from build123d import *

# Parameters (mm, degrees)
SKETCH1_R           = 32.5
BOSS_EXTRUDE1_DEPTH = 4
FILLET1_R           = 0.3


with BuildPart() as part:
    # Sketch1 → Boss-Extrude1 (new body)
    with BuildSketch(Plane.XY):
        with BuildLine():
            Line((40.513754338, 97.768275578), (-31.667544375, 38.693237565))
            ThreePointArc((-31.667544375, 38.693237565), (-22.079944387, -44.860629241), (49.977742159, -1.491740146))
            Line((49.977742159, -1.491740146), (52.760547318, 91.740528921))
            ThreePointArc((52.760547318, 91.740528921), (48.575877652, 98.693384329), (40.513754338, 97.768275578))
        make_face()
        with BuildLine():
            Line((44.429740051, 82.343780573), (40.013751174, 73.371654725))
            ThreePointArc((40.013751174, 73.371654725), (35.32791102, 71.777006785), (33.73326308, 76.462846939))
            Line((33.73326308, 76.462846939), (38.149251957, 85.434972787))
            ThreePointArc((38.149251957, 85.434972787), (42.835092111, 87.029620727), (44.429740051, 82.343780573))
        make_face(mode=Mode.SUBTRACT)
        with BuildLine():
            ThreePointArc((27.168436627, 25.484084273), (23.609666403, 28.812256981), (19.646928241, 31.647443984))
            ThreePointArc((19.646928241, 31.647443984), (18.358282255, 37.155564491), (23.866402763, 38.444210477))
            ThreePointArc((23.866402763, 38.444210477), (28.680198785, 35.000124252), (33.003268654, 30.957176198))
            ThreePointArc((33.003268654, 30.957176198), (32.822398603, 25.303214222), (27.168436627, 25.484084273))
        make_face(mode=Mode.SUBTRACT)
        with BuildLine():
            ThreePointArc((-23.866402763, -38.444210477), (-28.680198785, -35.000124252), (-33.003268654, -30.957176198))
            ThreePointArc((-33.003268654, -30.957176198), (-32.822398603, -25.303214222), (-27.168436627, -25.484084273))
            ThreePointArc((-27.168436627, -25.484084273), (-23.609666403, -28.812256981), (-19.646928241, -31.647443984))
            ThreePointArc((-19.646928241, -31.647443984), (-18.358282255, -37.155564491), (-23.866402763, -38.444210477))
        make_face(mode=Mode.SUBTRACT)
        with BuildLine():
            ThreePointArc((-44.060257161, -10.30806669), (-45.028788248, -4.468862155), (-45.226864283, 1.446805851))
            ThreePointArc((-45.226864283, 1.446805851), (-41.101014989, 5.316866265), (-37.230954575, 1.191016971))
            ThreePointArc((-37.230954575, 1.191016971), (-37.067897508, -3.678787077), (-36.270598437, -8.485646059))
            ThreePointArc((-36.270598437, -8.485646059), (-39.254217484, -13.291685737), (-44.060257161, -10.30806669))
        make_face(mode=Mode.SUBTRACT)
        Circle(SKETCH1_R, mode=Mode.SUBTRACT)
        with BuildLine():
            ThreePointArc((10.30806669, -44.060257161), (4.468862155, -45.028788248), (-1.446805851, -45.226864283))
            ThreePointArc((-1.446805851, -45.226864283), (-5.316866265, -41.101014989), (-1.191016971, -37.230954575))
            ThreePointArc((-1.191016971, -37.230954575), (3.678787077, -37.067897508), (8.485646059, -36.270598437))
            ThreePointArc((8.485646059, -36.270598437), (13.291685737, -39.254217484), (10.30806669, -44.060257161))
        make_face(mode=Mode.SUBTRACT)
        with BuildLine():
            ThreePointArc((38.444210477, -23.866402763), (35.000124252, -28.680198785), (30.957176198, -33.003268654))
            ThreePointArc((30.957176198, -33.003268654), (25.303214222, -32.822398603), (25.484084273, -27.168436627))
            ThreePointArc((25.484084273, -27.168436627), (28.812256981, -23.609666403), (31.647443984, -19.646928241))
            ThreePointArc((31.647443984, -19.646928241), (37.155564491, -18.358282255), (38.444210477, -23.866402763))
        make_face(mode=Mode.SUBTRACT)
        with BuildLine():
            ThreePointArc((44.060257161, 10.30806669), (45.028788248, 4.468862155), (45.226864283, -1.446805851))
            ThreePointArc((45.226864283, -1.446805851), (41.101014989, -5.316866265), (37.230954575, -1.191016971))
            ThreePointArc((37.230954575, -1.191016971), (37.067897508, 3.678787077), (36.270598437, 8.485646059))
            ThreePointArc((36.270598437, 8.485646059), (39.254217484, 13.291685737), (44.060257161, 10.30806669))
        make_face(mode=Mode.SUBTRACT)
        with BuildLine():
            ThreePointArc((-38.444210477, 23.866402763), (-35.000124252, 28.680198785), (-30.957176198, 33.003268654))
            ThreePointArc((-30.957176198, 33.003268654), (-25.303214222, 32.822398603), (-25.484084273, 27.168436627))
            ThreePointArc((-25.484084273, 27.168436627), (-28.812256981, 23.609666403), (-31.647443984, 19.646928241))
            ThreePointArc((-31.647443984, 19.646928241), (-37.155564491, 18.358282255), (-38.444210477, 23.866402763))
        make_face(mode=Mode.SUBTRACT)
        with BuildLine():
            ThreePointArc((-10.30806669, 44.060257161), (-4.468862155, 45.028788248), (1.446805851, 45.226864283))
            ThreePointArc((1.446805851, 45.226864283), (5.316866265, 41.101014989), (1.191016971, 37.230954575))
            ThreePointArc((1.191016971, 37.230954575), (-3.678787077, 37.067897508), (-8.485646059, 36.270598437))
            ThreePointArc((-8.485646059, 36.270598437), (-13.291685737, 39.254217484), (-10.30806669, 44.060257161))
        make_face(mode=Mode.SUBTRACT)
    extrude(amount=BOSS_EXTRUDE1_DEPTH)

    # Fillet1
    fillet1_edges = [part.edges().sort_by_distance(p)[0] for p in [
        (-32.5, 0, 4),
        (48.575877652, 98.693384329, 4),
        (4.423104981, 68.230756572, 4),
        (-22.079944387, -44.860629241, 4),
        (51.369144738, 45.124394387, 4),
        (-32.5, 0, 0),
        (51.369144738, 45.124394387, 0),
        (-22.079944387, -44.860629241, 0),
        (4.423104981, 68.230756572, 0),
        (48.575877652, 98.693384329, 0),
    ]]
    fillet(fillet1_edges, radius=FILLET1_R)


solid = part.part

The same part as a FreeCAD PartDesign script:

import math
import FreeCAD as App
import Part
import Sketcher
from FreeCAD import Vector
Q = App.Units.Quantity


def edges_at(feature, points):
    """Names of the edges that pass closest to the given points."""
    edges = feature.Shape.Edges
    near = lambda p: min(range(len(edges)), key=lambda i: edges[i].distToShape(Part.Vertex(*p))[0])
    return sorted({f"Edge{near(p) + 1}" for p in points})

doc = App.newDocument("Part")
params = doc.addObject("Spreadsheet::Sheet", "Params")
for row, (alias, value) in enumerate([
    ("sketch1_diameter", "65 mm"),
    ("sketch1_radius", "50 mm"),
    ("sketch1_radius2", "4 mm"),
    ("sketch1_radius3", "7.5 mm"),
    ("sketch1_radius4", "3.5 mm"),
    ("pad1_length", "4 mm"),
    ("fillet_radius", "0.3 mm"),
], start=1):
    params.set(f"A{row}", alias)
    params.set(f"B{row}", "=" + value)
    params.setAlias(f"B{row}", alias)

body = doc.addObject("PartDesign::Body", "Body")

# Sketch on XY plane
sketch1 = body.newObject("Sketcher::SketchObject", "Sketch")
sketch1.AttachmentSupport = (doc.getObject("XY_Plane"), [""])
sketch1.MapMode = "FlatFace"
sketch1.addGeometry([
    Part.LineSegment(Vector(40.5, 97.8, 0), Vector(-31.7, 38.7, 0)),  # 0
    Part.ArcOfCircle(Part.Circle(Vector(0, 0, 0), Vector(0, 0, 1), 50), math.radians(129), math.radians(358)),  # 1
    Part.LineSegment(Vector(50, -1.5, 0), Vector(52.8, 91.7, 0)),  # 2
    Part.ArcOfCircle(Part.Circle(Vector(45.3, 92, 0), Vector(0, 0, 1), 7.5), math.radians(-2), math.radians(129)),  # 3
    Part.ArcOfCircle(Part.Circle(Vector(-21.8, -35, 0), Vector(0, 0, 1), 4), math.radians(-122), math.radians(58)),  # 4
    Part.ArcOfCircle(Part.Circle(Vector(0, 0, 0), Vector(0, 0, 1), 45.3), math.radians(-136.83), math.radians(-121.83)),  # 5
    Part.ArcOfCircle(Part.Circle(Vector(-30.1, -28.2, 0), Vector(0, 0, 1), 4), math.radians(43), math.radians(223)),  # 6
    Part.ArcOfCircle(Part.Circle(Vector(0, 0, 0), Vector(0, 0, 1), 37.3), math.radians(-136.83), math.radians(-121.83)),  # 7
    Part.ArcOfCircle(Part.Circle(Vector(-40.2, -9.4, 0), Vector(0, 0, 1), 4), math.radians(-167), math.radians(13)),  # 8
    Part.ArcOfCircle(Part.Circle(Vector(0, 0, 0), Vector(0, 0, 1), 45.2), math.radians(178.17), math.radians(193.17)),  # 9
    Part.ArcOfCircle(Part.Circle(Vector(-41.2, 1.3, 0), Vector(0, 0, 1), 4), math.radians(-2), math.radians(178)),  # 10
    Part.ArcOfCircle(Part.Circle(Vector(0, 0, 0), Vector(0, 0, 1), 37.2), math.radians(178.17), math.radians(193.17)),  # 11
    Part.ArcOfCircle(Part.Circle(Vector(9.4, -40.2, 0), Vector(0, 0, 1), 4), math.radians(-77), math.radians(103)),  # 12
    Part.ArcOfCircle(Part.Circle(Vector(0, 0, 0), Vector(0, 0, 1), 45.2), math.radians(-91.83), math.radians(-76.83)),  # 13
    Part.ArcOfCircle(Part.Circle(Vector(-1.3, -41.2, 0), Vector(0, 0, 1), 4), math.radians(88), math.radians(268)),  # 14
    Part.ArcOfCircle(Part.Circle(Vector(0, 0, 0), Vector(0, 0, 1), 37.2), math.radians(-91.83), math.radians(-76.83)),  # 15
    Part.ArcOfCircle(Part.Circle(Vector(35, -21.8, 0), Vector(0, 0, 1), 4), math.radians(-32), math.radians(148)),  # 16
    Part.ArcOfCircle(Part.Circle(Vector(0, 0, 0), Vector(0, 0, 1), 45.3), math.radians(-46.83), math.radians(-31.83)),  # 17
    Part.ArcOfCircle(Part.Circle(Vector(28.2, -30.1, 0), Vector(0, 0, 1), 4), math.radians(133), math.radians(313)),  # 18
    Part.ArcOfCircle(Part.Circle(Vector(0, 0, 0), Vector(0, 0, 1), 37.3), math.radians(-46.83), math.radians(-31.83)),  # 19
    Part.Circle(Vector(0, 0, 0), Vector(0, 0, 1), 32.5),  # 20
    Part.ArcOfCircle(Part.Circle(Vector(40.2, 9.4, 0), Vector(0, 0, 1), 4), math.radians(13), math.radians(193)),  # 21
    Part.ArcOfCircle(Part.Circle(Vector(0, 0, 0), Vector(0, 0, 1), 45.2), math.radians(-1.83), math.radians(13.17)),  # 22
    Part.ArcOfCircle(Part.Circle(Vector(41.2, -1.3, 0), Vector(0, 0, 1), 4), math.radians(178), math.radians(358)),  # 23
    Part.ArcOfCircle(Part.Circle(Vector(0, 0, 0), Vector(0, 0, 1), 37.2), math.radians(-1.83), math.radians(13.17)),  # 24
    Part.ArcOfCircle(Part.Circle(Vector(-35, 21.8, 0), Vector(0, 0, 1), 4), math.radians(148), math.radians(328)),  # 25
    Part.ArcOfCircle(Part.Circle(Vector(0, 0, 0), Vector(0, 0, 1), 45.3), math.radians(133.17), math.radians(148.17)),  # 26
    Part.ArcOfCircle(Part.Circle(Vector(-28.2, 30.1, 0), Vector(0, 0, 1), 4), math.radians(-47), math.radians(133)),  # 27
    Part.ArcOfCircle(Part.Circle(Vector(0, 0, 0), Vector(0, 0, 1), 37.3), math.radians(133.17), math.radians(148.17)),  # 28
    Part.ArcOfCircle(Part.Circle(Vector(-9.4, 40.2, 0), Vector(0, 0, 1), 4), math.radians(103), math.radians(283)),  # 29
    Part.ArcOfCircle(Part.Circle(Vector(0, 0, 0), Vector(0, 0, 1), 45.2), math.radians(88.17), math.radians(103.17)),  # 30
    Part.ArcOfCircle(Part.Circle(Vector(1.3, 41.2, 0), Vector(0, 0, 1), 4), math.radians(-92), math.radians(88)),  # 31
    Part.ArcOfCircle(Part.Circle(Vector(0, 0, 0), Vector(0, 0, 1), 37.2), math.radians(88.17), math.radians(103.17)),  # 32
    Part.ArcOfCircle(Part.Circle(Vector(30.1, 28.2, 0), Vector(0, 0, 1), 4), math.radians(-137), math.radians(43)),  # 33
    Part.ArcOfCircle(Part.Circle(Vector(0, 0, 0), Vector(0, 0, 1), 37.3), math.radians(43.17), math.radians(58.17)),  # 34
    Part.ArcOfCircle(Part.Circle(Vector(21.8, 35, 0), Vector(0, 0, 1), 4), math.radians(58), math.radians(238)),  # 35
    Part.ArcOfCircle(Part.Circle(Vector(0, 0, 0), Vector(0, 0, 1), 45.3), math.radians(43.17), math.radians(58.17)),  # 36
    Part.ArcOfCircle(Part.Circle(Vector(41.3, 83.9, 0), Vector(0, 0, 1), 3.5), math.radians(-26), math.radians(154)),  # 37
    Part.LineSegment(Vector(44.4, 82.3, 0), Vector(40, 73.4, 0)),  # 38
    Part.ArcOfCircle(Part.Circle(Vector(36.9, 74.9, 0), Vector(0, 0, 1), 3.5), math.radians(154), math.radians(334)),  # 39
    Part.LineSegment(Vector(33.7, 76.5, 0), Vector(38.1, 85.4, 0)),  # 40
], False)
sketch1.addConstraint([
    Sketcher.Constraint("Tangent", 0, 2, 1, 1),
    Sketcher.Constraint("Tangent", 1, 2, 2, 1),
    Sketcher.Constraint("Tangent", 2, 2, 3, 1),
    Sketcher.Constraint("Tangent", 3, 2, 0, 1),
    Sketcher.Constraint("Tangent", 4, 1, 5, 2),
    Sketcher.Constraint("Tangent", 5, 1, 6, 2),
    Sketcher.Constraint("Tangent", 6, 1, 7, 1),
    Sketcher.Constraint("Tangent", 7, 2, 4, 2),
    Sketcher.Constraint("Tangent", 8, 1, 9, 2),
    Sketcher.Constraint("Tangent", 9, 1, 10, 2),
    Sketcher.Constraint("Tangent", 10, 1, 11, 1),
    Sketcher.Constraint("Tangent", 11, 2, 8, 2),
    Sketcher.Constraint("Tangent", 12, 1, 13, 2),
    Sketcher.Constraint("Tangent", 13, 1, 14, 2),
    Sketcher.Constraint("Tangent", 14, 1, 15, 1),
    Sketcher.Constraint("Tangent", 15, 2, 12, 2),
    Sketcher.Constraint("Tangent", 16, 1, 17, 2),
    Sketcher.Constraint("Tangent", 17, 1, 18, 2),
    Sketcher.Constraint("Tangent", 18, 1, 19, 1),
    Sketcher.Constraint("Tangent", 19, 2, 16, 2),
    Sketcher.Constraint("Tangent", 21, 1, 22, 2),
    Sketcher.Constraint("Tangent", 22, 1, 23, 2),
    Sketcher.Constraint("Tangent", 23, 1, 24, 1),
    Sketcher.Constraint("Tangent", 24, 2, 21, 2),
    Sketcher.Constraint("Tangent", 25, 1, 26, 2),
    Sketcher.Constraint("Tangent", 26, 1, 27, 2),
    Sketcher.Constraint("Tangent", 27, 1, 28, 1),
    Sketcher.Constraint("Tangent", 28, 2, 25, 2),
    Sketcher.Constraint("Tangent", 29, 1, 30, 2),
    Sketcher.Constraint("Tangent", 30, 1, 31, 2),
    Sketcher.Constraint("Tangent", 31, 1, 32, 1),
    Sketcher.Constraint("Tangent", 32, 2, 29, 2),
    Sketcher.Constraint("Tangent", 33, 1, 34, 1),
    Sketcher.Constraint("Tangent", 34, 2, 35, 2),
    Sketcher.Constraint("Tangent", 35, 1, 36, 2),
    Sketcher.Constraint("Tangent", 36, 1, 33, 2),
    Sketcher.Constraint("Tangent", 37, 1, 38, 1),
    Sketcher.Constraint("Tangent", 38, 2, 39, 2),
    Sketcher.Constraint("Tangent", 39, 1, 40, 1),
    Sketcher.Constraint("Tangent", 40, 2, 37, 2),
    Sketcher.Constraint("Coincident", 1, 3, -1, 1),
    Sketcher.Constraint("Coincident", 5, 3, -1, 1),
    Sketcher.Constraint("Coincident", 7, 3, -1, 1),
    Sketcher.Constraint("Coincident", 9, 3, -1, 1),
    Sketcher.Constraint("Coincident", 11, 3, -1, 1),
    Sketcher.Constraint("Coincident", 13, 3, -1, 1),
    Sketcher.Constraint("Coincident", 15, 3, -1, 1),
    Sketcher.Constraint("Coincident", 17, 3, -1, 1),
    Sketcher.Constraint("Coincident", 19, 3, -1, 1),
    Sketcher.Constraint("Coincident", 20, 3, -1, 1),
    Sketcher.Constraint("Coincident", 22, 3, -1, 1),
    Sketcher.Constraint("Coincident", 24, 3, -1, 1),
    Sketcher.Constraint("Coincident", 26, 3, -1, 1),
    Sketcher.Constraint("Coincident", 28, 3, -1, 1),
    Sketcher.Constraint("Coincident", 30, 3, -1, 1),
    Sketcher.Constraint("Coincident", 32, 3, -1, 1),
    Sketcher.Constraint("Coincident", 34, 3, -1, 1),
    Sketcher.Constraint("Coincident", 36, 3, -1, 1),
    Sketcher.Constraint("Equal", 6, 8),
    Sketcher.Constraint("Equal", 5, 9),
    Sketcher.Constraint("Equal", 10, 12),
    Sketcher.Constraint("Equal", 9, 13),
    Sketcher.Constraint("Equal", 14, 16),
    Sketcher.Constraint("Equal", 13, 17),
    Sketcher.Constraint("Equal", 18, 21),
    Sketcher.Constraint("Equal", 17, 22),
    Sketcher.Constraint("Equal", 23, 25),
    Sketcher.Constraint("Equal", 22, 26),
    Sketcher.Constraint("Equal", 27, 29),
    Sketcher.Constraint("Equal", 26, 30),
    Sketcher.Constraint("Equal", 31, 33),
    Sketcher.Constraint("Equal", 32, 34),
    Sketcher.Constraint("Equal", 37, 39),
    Sketcher.Constraint("Diameter", 20, Q("65 mm")),
    Sketcher.Constraint("Radius", 1, Q("50 mm")),
    Sketcher.Constraint("Radius", 4, Q("4 mm")),
    Sketcher.Constraint("Radius", 3, Q("7.5 mm")),
    Sketcher.Constraint("Radius", 37, Q("3.5 mm")),
    Sketcher.Constraint("Radius", 5, Q("45.25 mm")),
    Sketcher.Constraint("Distance", 38, Q("10 mm")),
    Sketcher.Constraint("DistanceX", 11, 2, -1, 1, Q("36.270598 mm")),
    Sketcher.Constraint("DistanceY", 15, 2, -1, 1, Q("36.270598 mm")),
    Sketcher.Constraint("DistanceX", -1, 1, 24, 2, Q("36.270598 mm")),
    Sketcher.Constraint("DistanceY", -1, 1, 32, 2, Q("36.270598 mm")),
    Sketcher.Constraint("Distance", 0, Q("93.273791 mm")),
    Sketcher.Constraint("DistanceY", -1, 1, 3, 3, Q("91.96429 mm")),
    Sketcher.Constraint("DistanceY", 6, 3, -1, 1, Q("28.22063 mm")),
    Sketcher.Constraint("DistanceX", 10, 3, -1, 1, Q("41.228909 mm")),
    Sketcher.Constraint("DistanceX", 14, 3, -1, 1, Q("1.318911 mm")),
    Sketcher.Constraint("DistanceX", -1, 1, 18, 3, Q("28.22063 mm")),
    Sketcher.Constraint("DistanceX", -1, 1, 23, 3, Q("41.228909 mm")),
    Sketcher.Constraint("DistanceX", 27, 3, -1, 1, Q("28.22063 mm")),
    Sketcher.Constraint("DistanceX", -1, 1, 31, 3, Q("1.318911 mm")),
    Sketcher.Constraint("DistanceY", -1, 1, 33, 3, Q("28.22063 mm")),
    Sketcher.Constraint("DistanceY", -1, 1, 39, 3, Q("74.917251 mm")),
    Sketcher.Constraint("DistanceY", 4, 1, -1, 1, Q("38.44421 mm")),
    Sketcher.Constraint("DistanceX", -1, 1, 16, 1, Q("38.44421 mm")),
    Sketcher.Constraint("DistanceX", 25, 1, -1, 1, Q("38.44421 mm")),
    Sketcher.Constraint("DistanceX", -1, 1, 34, 2, Q("19.646928 mm")),
    Sketcher.Constraint("DistanceX", -1, 1, 37, 1, Q("44.42974 mm")),
    Sketcher.Constraint("DistanceY", -1, 1, 37, 1, Q("82.343781 mm")),
])
sketch1.setExpression("Constraints[73]", "Params.sketch1_diameter")
sketch1.setExpression("Constraints[74]", "Params.sketch1_radius")
sketch1.setExpression("Constraints[75]", "Params.sketch1_radius2")
sketch1.setExpression("Constraints[76]", "Params.sketch1_radius3")
sketch1.setExpression("Constraints[77]", "Params.sketch1_radius4")
pad1 = body.newObject("PartDesign::Pad", "Pad")
pad1.Profile = sketch1
pad1.setExpression("Length", "Params.pad1_length")
doc.recompute()

fillet = body.newObject("PartDesign::Fillet", "Fillet")
fillet.Base = (pad1, edges_at(pad1, [
    (-32.5, 0, 4),
    (48.576, 98.693, 4),
    (4.423, 68.231, 4),
    (-22.08, -44.861, 4),
    (51.369, 45.124, 4),
    (-32.5, 0, 0),
    (51.369, 45.124, 0),
    (-22.08, -44.861, 0),
    (4.423, 68.231, 0),
    (48.576, 98.693, 0),
]))
fillet.setExpression("Radius", "Params.fillet_radius")

doc.recompute()
